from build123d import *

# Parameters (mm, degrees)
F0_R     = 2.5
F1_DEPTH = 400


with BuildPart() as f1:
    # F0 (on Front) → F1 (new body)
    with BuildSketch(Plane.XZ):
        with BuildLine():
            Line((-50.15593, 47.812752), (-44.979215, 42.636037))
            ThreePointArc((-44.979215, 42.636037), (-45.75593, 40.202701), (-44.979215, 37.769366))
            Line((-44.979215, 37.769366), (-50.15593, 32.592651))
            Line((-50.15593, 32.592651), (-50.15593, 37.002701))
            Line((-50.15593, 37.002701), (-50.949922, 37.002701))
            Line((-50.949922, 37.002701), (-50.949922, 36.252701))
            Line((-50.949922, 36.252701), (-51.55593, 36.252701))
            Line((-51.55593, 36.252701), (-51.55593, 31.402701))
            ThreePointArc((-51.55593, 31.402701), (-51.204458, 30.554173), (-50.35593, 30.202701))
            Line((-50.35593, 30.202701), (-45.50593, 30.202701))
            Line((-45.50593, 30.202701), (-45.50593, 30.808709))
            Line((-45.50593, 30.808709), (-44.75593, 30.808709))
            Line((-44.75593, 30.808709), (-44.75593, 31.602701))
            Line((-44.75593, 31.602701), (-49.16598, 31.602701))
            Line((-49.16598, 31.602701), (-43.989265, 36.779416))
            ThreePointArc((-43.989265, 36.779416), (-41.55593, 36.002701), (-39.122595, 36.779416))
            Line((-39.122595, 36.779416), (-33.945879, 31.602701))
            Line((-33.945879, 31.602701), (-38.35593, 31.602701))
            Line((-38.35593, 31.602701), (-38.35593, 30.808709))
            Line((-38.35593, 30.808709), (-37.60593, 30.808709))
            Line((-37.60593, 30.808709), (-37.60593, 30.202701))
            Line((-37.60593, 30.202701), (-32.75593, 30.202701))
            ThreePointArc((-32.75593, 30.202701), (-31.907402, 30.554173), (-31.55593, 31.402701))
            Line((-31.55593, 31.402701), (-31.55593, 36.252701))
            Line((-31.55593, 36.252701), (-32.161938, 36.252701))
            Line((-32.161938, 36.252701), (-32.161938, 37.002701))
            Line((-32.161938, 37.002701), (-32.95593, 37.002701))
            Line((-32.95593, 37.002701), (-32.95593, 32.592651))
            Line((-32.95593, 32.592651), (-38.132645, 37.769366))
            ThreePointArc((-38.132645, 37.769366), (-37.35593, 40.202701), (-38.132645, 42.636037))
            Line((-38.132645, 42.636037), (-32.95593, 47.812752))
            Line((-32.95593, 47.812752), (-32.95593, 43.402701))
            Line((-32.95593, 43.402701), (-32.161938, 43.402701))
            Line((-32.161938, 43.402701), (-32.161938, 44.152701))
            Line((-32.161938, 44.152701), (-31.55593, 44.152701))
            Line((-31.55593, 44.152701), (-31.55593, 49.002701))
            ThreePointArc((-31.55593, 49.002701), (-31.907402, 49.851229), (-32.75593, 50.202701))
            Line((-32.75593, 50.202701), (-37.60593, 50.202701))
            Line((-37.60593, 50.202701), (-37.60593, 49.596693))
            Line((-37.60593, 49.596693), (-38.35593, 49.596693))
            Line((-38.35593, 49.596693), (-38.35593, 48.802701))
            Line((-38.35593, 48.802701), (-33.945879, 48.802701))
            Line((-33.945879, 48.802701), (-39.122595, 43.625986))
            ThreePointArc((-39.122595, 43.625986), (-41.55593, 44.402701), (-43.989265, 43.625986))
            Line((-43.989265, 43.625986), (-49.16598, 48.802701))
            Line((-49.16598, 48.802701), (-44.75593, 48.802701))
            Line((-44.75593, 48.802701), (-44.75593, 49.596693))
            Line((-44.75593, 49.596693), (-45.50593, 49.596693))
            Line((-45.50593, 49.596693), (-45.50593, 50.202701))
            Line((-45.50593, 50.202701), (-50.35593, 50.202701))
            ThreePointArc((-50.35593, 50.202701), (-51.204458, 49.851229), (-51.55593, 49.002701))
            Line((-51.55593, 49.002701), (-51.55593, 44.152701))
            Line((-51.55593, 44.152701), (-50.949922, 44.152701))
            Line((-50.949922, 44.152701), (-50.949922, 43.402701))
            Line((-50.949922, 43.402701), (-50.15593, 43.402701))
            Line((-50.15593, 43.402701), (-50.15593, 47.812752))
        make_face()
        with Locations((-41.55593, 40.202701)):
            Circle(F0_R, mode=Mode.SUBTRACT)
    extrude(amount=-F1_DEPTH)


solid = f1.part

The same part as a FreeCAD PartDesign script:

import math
import FreeCAD as App
import Part
import Sketcher
from FreeCAD import Vector

doc = App.newDocument("Part")
params = doc.addObject("Spreadsheet::Sheet", "Params")
for row, (alias, value) in enumerate([
    ("sketch1_diameter", "5 mm"),
    ("sketch1_radius", "4.200001 mm"),
    ("sketch1_radius2", "1.2 mm"),
    ("sketch1_width", "4.85 mm"),
    ("sketch1_width2", "0.75 mm"),
    ("pad1_length", "400 mm"),
], start=1):
    params.set(f"A{row}", alias)
    params.set(f"B{row}", "=" + value)
    params.setAlias(f"B{row}", alias)

body = doc.addObject("PartDesign::Body", "Body")

# Sketch on XZ plane
sketch1 = body.newObject("Sketcher::SketchObject", "Sketch")
sketch1.AttachmentSupport = (doc.getObject("XZ_Plane"), [""])
sketch1.MapMode = "FlatFace"
sketch1.addGeometry(Part.LineSegment(Vector(-50.2, 47.8, 0), Vector(-45, 42.6, 0)), False)
sketch1.addGeometry(Part.ArcOfCircle(Part.Circle(Vector(-41.6, 40.2, 0), Vector(0, 0, 1), 4.2), math.radians(145), math.radians(215)), False)
sketch1.addGeometry(Part.LineSegment(Vector(-45, 37.8, 0), Vector(-50.2, 32.6, 0)), False)
sketch1.addGeometry(Part.LineSegment(Vector(-50.2, 32.6, 0), Vector(-50.2, 37, 0)), False)
sketch1.addGeometry(Part.LineSegment(Vector(-50.2, 37, 0), Vector(-50.9, 37, 0)), False)
sketch1.addGeometry(Part.LineSegment(Vector(-50.9, 37, 0), Vector(-50.9, 36.3, 0)), False)
sketch1.addGeometry(Part.LineSegment(Vector(-50.9, 36.3, 0), Vector(-51.6, 36.3, 0)), False)
sketch1.addGeometry(Part.LineSegment(Vector(-51.6, 36.3, 0), Vector(-51.6, 31.4, 0)), False)
sketch1.addGeometry(Part.ArcOfCircle(Part.Circle(Vector(-50.4, 31.4, 0), Vector(0, 0, 1), 1.2), math.radians(-180), math.radians(-90)), False)
sketch1.addGeometry(Part.LineSegment(Vector(-50.4, 30.2, 0), Vector(-45.5, 30.2, 0)), False)
sketch1.addGeometry(Part.LineSegment(Vector(-45.5, 30.2, 0), Vector(-45.5, 30.8, 0)), False)
sketch1.addGeometry(Part.LineSegment(Vector(-45.5, 30.8, 0), Vector(-44.8, 30.8, 0)), False)
sketch1.addGeometry(Part.LineSegment(Vector(-44.8, 30.8, 0), Vector(-44.8, 31.6, 0)), False)
sketch1.addGeometry(Part.LineSegment(Vector(-44.8, 31.6, 0), Vector(-49.2, 31.6, 0)), False)
sketch1.addGeometry(Part.LineSegment(Vector(-49.2, 31.6, 0), Vector(-44, 36.8, 0)), False)
sketch1.addGeometry(Part.ArcOfCircle(Part.Circle(Vector(-41.6, 40.2, 0), Vector(0, 0, 1), 4.2), math.radians(-125), math.radians(-55)), False)
sketch1.addGeometry(Part.LineSegment(Vector(-39.1, 36.8, 0), Vector(-33.9, 31.6, 0)), False)
sketch1.addGeometry(Part.LineSegment(Vector(-33.9, 31.6, 0), Vector(-38.4, 31.6, 0)), False)
sketch1.addGeometry(Part.LineSegment(Vector(-38.4, 31.6, 0), Vector(-38.4, 30.8, 0)), False)
sketch1.addGeometry(Part.LineSegment(Vector(-38.4, 30.8, 0), Vector(-37.6, 30.8, 0)), False)
sketch1.addGeometry(Part.LineSegment(Vector(-37.6, 30.8, 0), Vector(-37.6, 30.2, 0)), False)
sketch1.addGeometry(Part.LineSegment(Vector(-37.6, 30.2, 0), Vector(-32.8, 30.2, 0)), False)
sketch1.addGeometry(Part.ArcOfCircle(Part.Circle(Vector(-32.8, 31.4, 0), Vector(0, 0, 1), 1.2), math.radians(-90), math.radians(0)), False)
sketch1.addGeometry(Part.LineSegment(Vector(-31.6, 31.4, 0), Vector(-31.6, 36.3, 0)), False)
sketch1.addGeometry(Part.LineSegment(Vector(-31.6, 36.3, 0), Vector(-32.2, 36.3, 0)), False)
sketch1.addGeometry(Part.LineSegment(Vector(-32.2, 36.3, 0), Vector(-32.2, 37, 0)), False)
sketch1.addGeometry(Part.LineSegment(Vector(-32.2, 37, 0), Vector(-33, 37, 0)), False)
sketch1.addGeometry(Part.LineSegment(Vector(-33, 37, 0), Vector(-33, 32.6, 0)), False)
sketch1.addGeometry(Part.LineSegment(Vector(-33, 32.6, 0), Vector(-38.1, 37.8, 0)), False)
sketch1.addGeometry(Part.ArcOfCircle(Part.Circle(Vector(-41.6, 40.2, 0), Vector(0, 0, 1), 4.2), math.radians(-35), math.radians(35)), False)
sketch1.addGeometry(Part.LineSegment(Vector(-38.1, 42.6, 0), Vector(-33, 47.8, 0)), False)
sketch1.addGeometry(Part.LineSegment(Vector(-33, 47.8, 0), Vector(-33, 43.4, 0)), False)
sketch1.addGeometry(Part.LineSegment(Vector(-33, 43.4, 0), Vector(-32.2, 43.4, 0)), False)
sketch1.addGeometry(Part.LineSegment(Vector(-32.2, 43.4, 0), Vector(-32.2, 44.2, 0)), False)
sketch1.addGeometry(Part.LineSegment(Vector(-32.2, 44.2, 0), Vector(-31.6, 44.2, 0)), False)
sketch1.addGeometry(Part.LineSegment(Vector(-31.6, 44.2, 0), Vector(-31.6, 49, 0)), False)
sketch1.addGeometry(Part.ArcOfCircle(Part.Circle(Vector(-32.8, 49, 0), Vector(0, 0, 1), 1.2), math.radians(0), math.radians(90)), False)
sketch1.addGeometry(Part.LineSegment(Vector(-32.8, 50.2, 0), Vector(-37.6, 50.2, 0)), False)
sketch1.addGeometry(Part.LineSegment(Vector(-37.6, 50.2, 0), Vector(-37.6, 49.6, 0)), False)
sketch1.addGeometry(Part.LineSegment(Vector(-37.6, 49.6, 0), Vector(-38.4, 49.6, 0)), False)
sketch1.addGeometry(Part.LineSegment(Vector(-38.4, 49.6, 0), Vector(-38.4, 48.8, 0)), False)
sketch1.addGeometry(Part.LineSegment(Vector(-38.4, 48.8, 0), Vector(-33.9, 48.8, 0)), False)
sketch1.addGeometry(Part.LineSegment(Vector(-33.9, 48.8, 0), Vector(-39.1, 43.6, 0)), False)
sketch1.addGeometry(Part.ArcOfCircle(Part.Circle(Vector(-41.6, 40.2, 0), Vector(0, 0, 1), 4.2), math.radians(55), math.radians(125)), False)
sketch1.addGeometry(Part.LineSegment(Vector(-44, 43.6, 0), Vector(-49.2, 48.8, 0)), False)
sketch1.addGeometry(Part.LineSegment(Vector(-49.2, 48.8, 0), Vector(-44.8, 48.8, 0)), False)
sketch1.addGeometry(Part.LineSegment(Vector(-44.8, 48.8, 0), Vector(-44.8, 49.6, 0)), False)
sketch1.addGeometry(Part.LineSegment(Vector(-44.8, 49.6, 0), Vector(-45.5, 49.6, 0)), False)
sketch1.addGeometry(Part.LineSegment(Vector(-45.5, 49.6, 0), Vector(-45.5, 50.2, 0)), False)
sketch1.addGeometry(Part.LineSegment(Vector(-45.5, 50.2, 0), Vector(-50.4, 50.2, 0)), False)
sketch1.addGeometry(Part.ArcOfCircle(Part.Circle(Vector(-50.4, 49, 0), Vector(0, 0, 1), 1.2), math.radians(90), math.radians(180)), False)
sketch1.addGeometry(Part.LineSegment(Vector(-51.6, 49, 0), Vector(-51.6, 44.2, 0)), False)
sketch1.addGeometry(Part.LineSegment(Vector(-51.6, 44.2, 0), Vector(-50.9, 44.2, 0)), False)
sketch1.addGeometry(Part.LineSegment(Vector(-50.9, 44.2, 0), Vector(-50.9, 43.4, 0)), False)
sketch1.addGeometry(Part.LineSegment(Vector(-50.9, 43.4, 0), Vector(-50.2, 43.4, 0)), False)
sketch1.addGeometry(Part.LineSegment(Vector(-50.2, 43.4, 0), Vector(-50.2, 47.8, 0)), False)
sketch1.addGeometry(Part.Circle(Vector(-41.6, 40.2, 0), Vector(0, 0, 1), 2.5), False)
sketch1.addConstraint(Sketcher.Constraint("Coincident", 0, 2, 1, 1))
sketch1.addConstraint(Sketcher.Constraint("Coincident", 1, 2, 2, 1))
sketch1.addConstraint(Sketcher.Constraint("Coincident", 2, 2, 3, 1))
sketch1.addConstraint(Sketcher.Constraint("Coincident", 3, 2, 4, 1))
sketch1.addConstraint(Sketcher.Constraint("Coincident", 4, 2, 5, 1))
sketch1.addConstraint(Sketcher.Constraint("Coincident", 5, 2, 6, 1))
sketch1.addConstraint(Sketcher.Constraint("Coincident", 6, 2, 7, 1))
sketch1.addConstraint(Sketcher.Constraint("Tangent", 7, 2, 8, 1))
sketch1.addConstraint(Sketcher.Constraint("Tangent", 8, 2, 9, 1))
sketch1.addConstraint(Sketcher.Constraint("Coincident", 9, 2, 10, 1))
sketch1.addConstraint(Sketcher.Constraint("Coincident", 10, 2, 11, 1))
sketch1.addConstraint(Sketcher.Constraint("Coincident", 11, 2, 12, 1))
sketch1.addConstraint(Sketcher.Constraint("Coincident", 12, 2, 13, 1))
sketch1.addConstraint(Sketcher.Constraint("Coincident", 13, 2, 14, 1))
sketch1.addConstraint(Sketcher.Constraint("Coincident", 14, 2, 15, 1))
sketch1.addConstraint(Sketcher.Constraint("Coincident", 15, 2, 16, 1))
sketch1.addConstraint(Sketcher.Constraint("Coincident", 16, 2, 17, 1))
sketch1.addConstraint(Sketcher.Constraint("Coincident", 17, 2, 18, 1))
sketch1.addConstraint(Sketcher.Constraint("Coincident", 18, 2, 19, 1))
sketch1.addConstraint(Sketcher.Constraint("Coincident", 19, 2, 20, 1))
sketch1.addConstraint(Sketcher.Constraint("Coincident", 20, 2, 21, 1))
sketch1.addConstraint(Sketcher.Constraint("Tangent", 21, 2, 22, 1))
sketch1.addConstraint(Sketcher.Constraint("Tangent", 22, 2, 23, 1))
sketch1.addConstraint(Sketcher.Constraint("Coincident", 23, 2, 24, 1))
sketch1.addConstraint(Sketcher.Constraint("Coincident", 24, 2, 25, 1))
sketch1.addConstraint(Sketcher.Constraint("Coincident", 25, 2, 26, 1))
sketch1.addConstraint(Sketcher.Constraint("Coincident", 26, 2, 27, 1))
sketch1.addConstraint(Sketcher.Constraint("Coincident", 27, 2, 28, 1))
sketch1.addConstraint(Sketcher.Constraint("Coincident", 28, 2, 29, 1))
sketch1.addConstraint(Sketcher.Constraint("Coincident", 29, 2, 30, 1))
sketch1.addConstraint(Sketcher.Constraint("Coincident", 30, 2, 31, 1))
sketch1.addConstraint(Sketcher.Constraint("Coincident", 31, 2, 32, 1))
sketch1.addConstraint(Sketcher.Constraint("Coincident", 32, 2, 33, 1))
sketch1.addConstraint(Sketcher.Constraint("Coincident", 33, 2, 34, 1))
sketch1.addConstraint(Sketcher.Constraint("Coincident", 34, 2, 35, 1))
sketch1.addConstraint(Sketcher.Constraint("Tangent", 35, 2, 36, 1))
sketch1.addConstraint(Sketcher.Constraint("Tangent", 36, 2, 37, 1))
sketch1.addConstraint(Sketcher.Constraint("Coincident", 37, 2, 38, 1))
sketch1.addConstraint(Sketcher.Constraint("Coincident", 38, 2, 39, 1))
sketch1.addConstraint(Sketcher.Constraint("Coincident", 39, 2, 40, 1))
sketch1.addConstraint(Sketcher.Constraint("Coincident", 40, 2, 41, 1))
sketch1.addConstraint(Sketcher.Constraint("Coincident", 41, 2, 42, 1))
sketch1.addConstraint(Sketcher.Constraint("Coincident", 42, 2, 43, 1))
sketch1.addConstraint(Sketcher.Constraint("Coincident", 43, 2, 44, 1))
sketch1.addConstraint(Sketcher.Constraint("Coincident", 44, 2, 45, 1))
sketch1.addConstraint(Sketcher.Constraint("Coincident", 45, 2, 46, 1))
sketch1.addConstraint(Sketcher.Constraint("Coincident", 46, 2, 47, 1))
sketch1.addConstraint(Sketcher.Constraint("Coincident", 47, 2, 48, 1))
sketch1.addConstraint(Sketcher.Constraint("Coincident", 48, 2, 49, 1))
sketch1.addConstraint(Sketcher.Constraint("Tangent", 49, 2, 50, 1))
sketch1.addConstraint(Sketcher.Constraint("Tangent", 50, 2, 51, 1))
sketch1.addConstraint(Sketcher.Constraint("Coincident", 51, 2, 52, 1))
sketch1.addConstraint(Sketcher.Constraint("Coincident", 52, 2, 53, 1))
sketch1.addConstraint(Sketcher.Constraint("Coincident", 53, 2, 54, 1))
sketch1.addConstraint(Sketcher.Constraint("Coincident", 54, 2, 55, 1))
sketch1.addConstraint(Sketcher.Constraint("Coincident", 55, 2, 0, 1))
sketch1.addConstraint(Sketcher.Constraint("Vertical", 3))
sketch1.addConstraint(Sketcher.Constraint("Horizontal", 4))
sketch1.addConstraint(Sketcher.Constraint("Vertical", 5))
sketch1.addConstraint(Sketcher.Constraint("Horizontal", 6))
sketch1.addConstraint(Sketcher.Constraint("Vertical", 7))
sketch1.addConstraint(Sketcher.Constraint("Horizontal", 9))
sketch1.addConstraint(Sketcher.Constraint("Vertical", 10))
sketch1.addConstraint(Sketcher.Constraint("Horizontal", 11))
sketch1.addConstraint(Sketcher.Constraint("Vertical", 12))
sketch1.addConstraint(Sketcher.Constraint("Horizontal", 13))
sketch1.addConstraint(Sketcher.Constraint("Horizontal", 17))
sketch1.addConstraint(Sketcher.Constraint("Vertical", 18))
sketch1.addConstraint(Sketcher.Constraint("Horizontal", 19))
sketch1.addConstraint(Sketcher.Constraint("Vertical", 20))
sketch1.addConstraint(Sketcher.Constraint("Horizontal", 21))
sketch1.addConstraint(Sketcher.Constraint("Vertical", 23))
sketch1.addConstraint(Sketcher.Constraint("Horizontal", 24))
sketch1.addConstraint(Sketcher.Constraint("Vertical", 25))
sketch1.addConstraint(Sketcher.Constraint("Horizontal", 26))
sketch1.addConstraint(Sketcher.Constraint("Vertical", 27))
sketch1.addConstraint(Sketcher.Constraint("Vertical", 31))
sketch1.addConstraint(Sketcher.Constraint("Horizontal", 32))
sketch1.addConstraint(Sketcher.Constraint("Vertical", 33))
sketch1.addConstraint(Sketcher.Constraint("Horizontal", 34))
sketch1.addConstraint(Sketcher.Constraint("Vertical", 35))
sketch1.addConstraint(Sketcher.Constraint("Horizontal", 37))
sketch1.addConstraint(Sketcher.Constraint("Vertical", 38))
sketch1.addConstraint(Sketcher.Constraint("Horizontal", 39))
sketch1.addConstraint(Sketcher.Constraint("Vertical", 40))
sketch1.addConstraint(Sketcher.Constraint("Horizontal", 41))
sketch1.addConstraint(Sketcher.Constraint("Horizontal", 45))
sketch1.addConstraint(Sketcher.Constraint("Vertical", 46))
sketch1.addConstraint(Sketcher.Constraint("Horizontal", 47))
sketch1.addConstraint(Sketcher.Constraint("Vertical", 48))
sketch1.addConstraint(Sketcher.Constraint("Horizontal", 49))
sketch1.addConstraint(Sketcher.Constraint("Vertical", 51))
sketch1.addConstraint(Sketcher.Constraint("Horizontal", 52))
sketch1.addConstraint(Sketcher.Constraint("Vertical", 53))
sketch1.addConstraint(Sketcher.Constraint("Horizontal", 54))
sketch1.addConstraint(Sketcher.Constraint("Vertical", 55))
sketch1.addConstraint(Sketcher.Constraint("Coincident", 15, 3, 1, 3))
sketch1.addConstraint(Sketcher.Constraint("Coincident", 29, 3, 1, 3))
sketch1.addConstraint(Sketcher.Constraint("Coincident", 43, 3, 1, 3))
sketch1.addConstraint(Sketcher.Constraint("Coincident", 56, 3, 1, 3))
sketch1.addConstraint(Sketcher.Constraint("Equal", 1, 15))
sketch1.addConstraint(Sketcher.Constraint("Equal", 8, 22))
sketch1.addConstraint(Sketcher.Constraint("Equal", 15, 29))
sketch1.addConstraint(Sketcher.Constraint("Equal", 22, 36))
sketch1.addConstraint(Sketcher.Constraint("Equal", 29, 43))
sketch1.addConstraint(Sketcher.Constraint("Equal", 36, 50))
sketch1.addConstraint(Sketcher.Constraint("Perpendicular", 0, 2))
sketch1.addConstraint(Sketcher.Constraint("Parallel", 2, 14))
sketch1.addConstraint(Sketcher.Constraint("Perpendicular", 14, 16))
sketch1.addConstraint(Sketcher.Constraint("Parallel", 16, 28))
sketch1.addConstraint(Sketcher.Constraint("Perpendicular", 28, 30))
sketch1.addConstraint(Sketcher.Constraint("Parallel", 30, 42))
sketch1.addConstraint(Sketcher.Constraint("Perpendicular", 42, 44))
sketch1.addConstraint(Sketcher.Constraint("Horizontal", 8, 3, 22, 3))
sketch1.addConstraint(Sketcher.Constraint("Horizontal", 36, 3, 50, 3))
sketch1.addConstraint(Sketcher.Constraint("Horizontal", 14, 2, 15, 2))
sketch1.addConstraint(Sketcher.Constraint("Horizontal", 13, 2, 16, 2))
sketch1.addConstraint(Sketcher.Constraint("Horizontal", 11, 2, 18, 2))
sketch1.addConstraint(Sketcher.Constraint("Horizontal", 6, 2, 23, 2))
sketch1.addConstraint(Sketcher.Constraint("Horizontal", 4, 2, 25, 2))
sketch1.addConstraint(Sketcher.Constraint("Horizontal", 2, 2, 27, 2))
sketch1.addConstraint(Sketcher.Constraint("Horizontal", 1, 2, 28, 2))
sketch1.addConstraint(Sketcher.Constraint("Horizontal", 0, 2, 29, 2))
sketch1.addConstraint(Sketcher.Constraint("Horizontal", 42, 2, 43, 2))
sketch1.addConstraint(Sketcher.Constraint("Horizontal", 41, 2, 44, 2))
sketch1.addConstraint(Sketcher.Constraint("Horizontal", 39, 2, 46, 2))
sketch1.addConstraint(Sketcher.Constraint("Horizontal", 34, 2, 51, 2))
sketch1.addConstraint(Sketcher.Constraint("Horizontal", 32, 2, 53, 2))
sketch1.addConstraint(Sketcher.Constraint("Horizontal", 30, 2, 55, 2))
sketch1.addConstraint(Sketcher.Constraint("Vertical", 22, 3, 36, 3))
sketch1.addConstraint(Sketcher.Constraint("Vertical", 8, 3, 50, 3))
sketch1.addConstraint(Sketcher.Constraint("Vertical", 0, 2, 1, 2))
sketch1.addConstraint(Sketcher.Constraint("Vertical", 27, 2, 30, 2))
sketch1.addConstraint(Sketcher.Constraint("Vertical", 25, 2, 32, 2))
sketch1.addConstraint(Sketcher.Constraint("Vertical", 20, 2, 37, 2))
sketch1.addConstraint(Sketcher.Constraint("Vertical", 18, 2, 39, 2))
sketch1.addConstraint(Sketcher.Constraint("Vertical", 16, 2, 41, 2))
sketch1.addConstraint(Sketcher.Constraint("Vertical", 15, 2, 42, 2))
sketch1.addConstraint(Sketcher.Constraint("Vertical", 13, 2, 44, 2))
sketch1.addConstraint(Sketcher.Constraint("Vertical", 12, 2, 45, 2))
sketch1.addConstraint(Sketcher.Constraint("Vertical", 10, 2, 47, 2))
sketch1.addConstraint(Sketcher.Constraint("Vertical", 5, 2, 52, 2))
sketch1.addConstraint(Sketcher.Constraint("Equal", 13, 17))
sketch1.addConstraint(Sketcher.Constraint("Equal", 11, 19))
sketch1.addConstraint(Sketcher.Constraint("Equal", 9, 21))
sketch1.addConstraint(Sketcher.Constraint("Equal", 6, 24))
sketch1.addConstraint(Sketcher.Constraint("Equal", 45, 3))
sketch1.addConstraint(Sketcher.Constraint("Equal", 47, 5))
sketch1.addConstraint(Sketcher.Constraint("Equal", 49, 7))
sketch1.addConstraint(Sketcher.Constraint("Equal", 52, 10))
sketch1.addConstraint(Sketcher.Constraint("Equal", 54, 12))
sketch1.addConstraint(Sketcher.Constraint("Equal", 27, 31))
sketch1.addConstraint(Sketcher.Constraint("Equal", 25, 33))
sketch1.addConstraint(Sketcher.Constraint("Equal", 23, 35))
sketch1.addConstraint(Sketcher.Constraint("Equal", 20, 38))
sketch1.addConstraint(Sketcher.Constraint("Equal", 2, 14))
sketch1.addConstraint(Sketcher.Constraint("Diameter", 56, 5.0))
sketch1.addConstraint(Sketcher.Constraint("Radius", 1, 4.200001))
sketch1.addConstraint(Sketcher.Constraint("Radius", 8, 1.2))
sketch1.addConstraint(Sketcher.Constraint("DistanceX", 9, 1, 9, 2, 4.85))
sketch1.addConstraint(Sketcher.Constraint("DistanceX", 11, 1, 11, 2, 0.75))
sketch1.addConstraint(Sketcher.Constraint("DistanceX", 13, 2, 13, 1, 4.41005))
sketch1.addConstraint(Sketcher.Constraint("DistanceY", 12, 1, 12, 2, 0.793992))
sketch1.addConstraint(Sketcher.Constraint("DistanceY", -1, 1, 1, 3, 40.202702))
sketch1.addConstraint(Sketcher.Constraint("DistanceY", -1, 1, 8, 3, 31.402701))
sketch1.addConstraint(Sketcher.Constraint("DistanceY", -1, 1, 12, 2, 31.602701))
sketch1.addConstraint(Sketcher.Constraint("DistanceX", 1, 3, -1, 1, 41.555929))
sketch1.setExpression("Constraints[156]", "Params.sketch1_diameter")
sketch1.setExpression("Constraints[157]", "Params.sketch1_radius")
sketch1.setExpression("Constraints[158]", "Params.sketch1_radius2")
sketch1.setExpression("Constraints[159]", "Params.sketch1_width")
sketch1.setExpression("Constraints[160]", "Params.sketch1_width2")
pad1 = body.newObject("PartDesign::Pad", "Pad")
pad1.Profile = sketch1
pad1.setExpression("Length", "Params.pad1_length")
pad1.Reversed = True

doc.recompute()
